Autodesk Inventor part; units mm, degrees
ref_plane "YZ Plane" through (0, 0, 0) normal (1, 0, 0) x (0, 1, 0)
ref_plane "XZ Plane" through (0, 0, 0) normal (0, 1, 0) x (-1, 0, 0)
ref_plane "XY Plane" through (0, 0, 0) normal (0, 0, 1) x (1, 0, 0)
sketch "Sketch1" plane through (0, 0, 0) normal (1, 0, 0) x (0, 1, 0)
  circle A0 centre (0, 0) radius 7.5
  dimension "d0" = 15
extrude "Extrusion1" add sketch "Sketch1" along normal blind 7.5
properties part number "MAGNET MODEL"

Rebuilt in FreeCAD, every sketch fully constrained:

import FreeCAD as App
import Part
import Sketcher

V = App.Vector

doc = App.newDocument("Part")
params = doc.addObject("Spreadsheet::Sheet", "Params")
for row, (alias, value) in enumerate([
    ("sketch1_diameter", "15 mm"),
    ("pad1_length", "7.5 mm"),
], start=1):
    params.set(f"A{row}", alias)
    params.set(f"B{row}", "=" + value)
    params.setAlias(f"B{row}", alias)

body = doc.addObject("PartDesign::Body", "Body")

# Sketch on YZ plane
sketch1 = doc.addObject("Sketcher::SketchObject", "Sketch")
body.addObject(sketch1)
sketch1.AttachmentSupport = (doc.YZ_Plane, [""])
sketch1.MapMode = "FlatFace"
sketch1.addGeometry(Part.Circle(V(0, 0, 0), V(0, 0, 1), 8), False)
sketch1.addConstraint([
    Sketcher.Constraint("Coincident", 0, 3, -1, 1),
    Sketcher.Constraint("Diameter", 0, 15.0),
])
sketch1.setExpression("Constraints[1]", "Params.sketch1_diameter")
pad1 = doc.addObject("PartDesign::Pad", "Pad")
body.addObject(pad1)
pad1.Profile = sketch1
pad1.setExpression("Length", "Params.pad1_length")

doc.recompute()
